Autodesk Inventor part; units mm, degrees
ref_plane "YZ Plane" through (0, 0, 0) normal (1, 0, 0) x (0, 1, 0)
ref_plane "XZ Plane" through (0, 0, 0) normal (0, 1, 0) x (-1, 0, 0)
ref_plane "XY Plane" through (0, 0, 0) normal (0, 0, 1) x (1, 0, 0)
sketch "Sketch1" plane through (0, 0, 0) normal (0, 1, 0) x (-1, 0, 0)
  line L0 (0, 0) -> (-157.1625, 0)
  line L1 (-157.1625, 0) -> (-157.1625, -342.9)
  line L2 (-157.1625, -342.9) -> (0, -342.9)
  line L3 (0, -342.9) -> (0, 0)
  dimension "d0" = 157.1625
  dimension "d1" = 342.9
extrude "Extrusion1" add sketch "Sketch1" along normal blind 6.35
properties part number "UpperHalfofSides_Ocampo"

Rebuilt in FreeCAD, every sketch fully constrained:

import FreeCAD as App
import Part
import Sketcher
Q = App.Units.Quantity

doc = App.newDocument("Part")
body = doc.addObject("PartDesign::Body", "Body")

# Sketch on XZ plane
sketch1 = body.newObject("Sketcher::SketchObject", "Sketch")
sketch1.AttachmentSupport = (doc.getObject("XZ_Plane"), [""])
sketch1.MapMode = "FlatFace"
sketch1.addGeometry(Part.LineSegment(App.Vector(0, -342.9, 0), App.Vector(0, 0, 0)), False)
sketch1.addGeometry(Part.LineSegment(App.Vector(0, 0, 0), App.Vector(157.1625, 0, 0)), False)
sketch1.addGeometry(Part.LineSegment(App.Vector(157.1625, 0, 0), App.Vector(157.1625, -342.9, 0)), False)
sketch1.addGeometry(Part.LineSegment(App.Vector(157.1625, -342.9, 0), App.Vector(0, -342.9, 0)), False)
sketch1.addConstraint(Sketcher.Constraint("Coincident", 0, 2, 1, 1))
sketch1.addConstraint(Sketcher.Constraint("Coincident", 1, 2, 2, 1))
sketch1.addConstraint(Sketcher.Constraint("Coincident", 2, 2, 3, 1))
sketch1.addConstraint(Sketcher.Constraint("Coincident", 3, 2, 0, 1))
sketch1.addConstraint(Sketcher.Constraint("Vertical", 0))
sketch1.addConstraint(Sketcher.Constraint("Horizontal", 1))
sketch1.addConstraint(Sketcher.Constraint("Vertical", 2))
sketch1.addConstraint(Sketcher.Constraint("Horizontal", 3))
sketch1.addConstraint(Sketcher.Constraint("Coincident", 0, 2, -1, 1))
sketch1.addConstraint(Sketcher.Constraint("DistanceY", 0, 1, 0, 2, Q("13.5 in")))
sketch1.addConstraint(Sketcher.Constraint("DistanceX", 1, 1, 1, 2, Q("6.1875 in")))
pad1 = body.newObject("PartDesign::Pad", "Pad")
pad1.Profile = sketch1
pad1.Length = Q("0.25 in")
pad1.Reversed = True

doc.recompute()
